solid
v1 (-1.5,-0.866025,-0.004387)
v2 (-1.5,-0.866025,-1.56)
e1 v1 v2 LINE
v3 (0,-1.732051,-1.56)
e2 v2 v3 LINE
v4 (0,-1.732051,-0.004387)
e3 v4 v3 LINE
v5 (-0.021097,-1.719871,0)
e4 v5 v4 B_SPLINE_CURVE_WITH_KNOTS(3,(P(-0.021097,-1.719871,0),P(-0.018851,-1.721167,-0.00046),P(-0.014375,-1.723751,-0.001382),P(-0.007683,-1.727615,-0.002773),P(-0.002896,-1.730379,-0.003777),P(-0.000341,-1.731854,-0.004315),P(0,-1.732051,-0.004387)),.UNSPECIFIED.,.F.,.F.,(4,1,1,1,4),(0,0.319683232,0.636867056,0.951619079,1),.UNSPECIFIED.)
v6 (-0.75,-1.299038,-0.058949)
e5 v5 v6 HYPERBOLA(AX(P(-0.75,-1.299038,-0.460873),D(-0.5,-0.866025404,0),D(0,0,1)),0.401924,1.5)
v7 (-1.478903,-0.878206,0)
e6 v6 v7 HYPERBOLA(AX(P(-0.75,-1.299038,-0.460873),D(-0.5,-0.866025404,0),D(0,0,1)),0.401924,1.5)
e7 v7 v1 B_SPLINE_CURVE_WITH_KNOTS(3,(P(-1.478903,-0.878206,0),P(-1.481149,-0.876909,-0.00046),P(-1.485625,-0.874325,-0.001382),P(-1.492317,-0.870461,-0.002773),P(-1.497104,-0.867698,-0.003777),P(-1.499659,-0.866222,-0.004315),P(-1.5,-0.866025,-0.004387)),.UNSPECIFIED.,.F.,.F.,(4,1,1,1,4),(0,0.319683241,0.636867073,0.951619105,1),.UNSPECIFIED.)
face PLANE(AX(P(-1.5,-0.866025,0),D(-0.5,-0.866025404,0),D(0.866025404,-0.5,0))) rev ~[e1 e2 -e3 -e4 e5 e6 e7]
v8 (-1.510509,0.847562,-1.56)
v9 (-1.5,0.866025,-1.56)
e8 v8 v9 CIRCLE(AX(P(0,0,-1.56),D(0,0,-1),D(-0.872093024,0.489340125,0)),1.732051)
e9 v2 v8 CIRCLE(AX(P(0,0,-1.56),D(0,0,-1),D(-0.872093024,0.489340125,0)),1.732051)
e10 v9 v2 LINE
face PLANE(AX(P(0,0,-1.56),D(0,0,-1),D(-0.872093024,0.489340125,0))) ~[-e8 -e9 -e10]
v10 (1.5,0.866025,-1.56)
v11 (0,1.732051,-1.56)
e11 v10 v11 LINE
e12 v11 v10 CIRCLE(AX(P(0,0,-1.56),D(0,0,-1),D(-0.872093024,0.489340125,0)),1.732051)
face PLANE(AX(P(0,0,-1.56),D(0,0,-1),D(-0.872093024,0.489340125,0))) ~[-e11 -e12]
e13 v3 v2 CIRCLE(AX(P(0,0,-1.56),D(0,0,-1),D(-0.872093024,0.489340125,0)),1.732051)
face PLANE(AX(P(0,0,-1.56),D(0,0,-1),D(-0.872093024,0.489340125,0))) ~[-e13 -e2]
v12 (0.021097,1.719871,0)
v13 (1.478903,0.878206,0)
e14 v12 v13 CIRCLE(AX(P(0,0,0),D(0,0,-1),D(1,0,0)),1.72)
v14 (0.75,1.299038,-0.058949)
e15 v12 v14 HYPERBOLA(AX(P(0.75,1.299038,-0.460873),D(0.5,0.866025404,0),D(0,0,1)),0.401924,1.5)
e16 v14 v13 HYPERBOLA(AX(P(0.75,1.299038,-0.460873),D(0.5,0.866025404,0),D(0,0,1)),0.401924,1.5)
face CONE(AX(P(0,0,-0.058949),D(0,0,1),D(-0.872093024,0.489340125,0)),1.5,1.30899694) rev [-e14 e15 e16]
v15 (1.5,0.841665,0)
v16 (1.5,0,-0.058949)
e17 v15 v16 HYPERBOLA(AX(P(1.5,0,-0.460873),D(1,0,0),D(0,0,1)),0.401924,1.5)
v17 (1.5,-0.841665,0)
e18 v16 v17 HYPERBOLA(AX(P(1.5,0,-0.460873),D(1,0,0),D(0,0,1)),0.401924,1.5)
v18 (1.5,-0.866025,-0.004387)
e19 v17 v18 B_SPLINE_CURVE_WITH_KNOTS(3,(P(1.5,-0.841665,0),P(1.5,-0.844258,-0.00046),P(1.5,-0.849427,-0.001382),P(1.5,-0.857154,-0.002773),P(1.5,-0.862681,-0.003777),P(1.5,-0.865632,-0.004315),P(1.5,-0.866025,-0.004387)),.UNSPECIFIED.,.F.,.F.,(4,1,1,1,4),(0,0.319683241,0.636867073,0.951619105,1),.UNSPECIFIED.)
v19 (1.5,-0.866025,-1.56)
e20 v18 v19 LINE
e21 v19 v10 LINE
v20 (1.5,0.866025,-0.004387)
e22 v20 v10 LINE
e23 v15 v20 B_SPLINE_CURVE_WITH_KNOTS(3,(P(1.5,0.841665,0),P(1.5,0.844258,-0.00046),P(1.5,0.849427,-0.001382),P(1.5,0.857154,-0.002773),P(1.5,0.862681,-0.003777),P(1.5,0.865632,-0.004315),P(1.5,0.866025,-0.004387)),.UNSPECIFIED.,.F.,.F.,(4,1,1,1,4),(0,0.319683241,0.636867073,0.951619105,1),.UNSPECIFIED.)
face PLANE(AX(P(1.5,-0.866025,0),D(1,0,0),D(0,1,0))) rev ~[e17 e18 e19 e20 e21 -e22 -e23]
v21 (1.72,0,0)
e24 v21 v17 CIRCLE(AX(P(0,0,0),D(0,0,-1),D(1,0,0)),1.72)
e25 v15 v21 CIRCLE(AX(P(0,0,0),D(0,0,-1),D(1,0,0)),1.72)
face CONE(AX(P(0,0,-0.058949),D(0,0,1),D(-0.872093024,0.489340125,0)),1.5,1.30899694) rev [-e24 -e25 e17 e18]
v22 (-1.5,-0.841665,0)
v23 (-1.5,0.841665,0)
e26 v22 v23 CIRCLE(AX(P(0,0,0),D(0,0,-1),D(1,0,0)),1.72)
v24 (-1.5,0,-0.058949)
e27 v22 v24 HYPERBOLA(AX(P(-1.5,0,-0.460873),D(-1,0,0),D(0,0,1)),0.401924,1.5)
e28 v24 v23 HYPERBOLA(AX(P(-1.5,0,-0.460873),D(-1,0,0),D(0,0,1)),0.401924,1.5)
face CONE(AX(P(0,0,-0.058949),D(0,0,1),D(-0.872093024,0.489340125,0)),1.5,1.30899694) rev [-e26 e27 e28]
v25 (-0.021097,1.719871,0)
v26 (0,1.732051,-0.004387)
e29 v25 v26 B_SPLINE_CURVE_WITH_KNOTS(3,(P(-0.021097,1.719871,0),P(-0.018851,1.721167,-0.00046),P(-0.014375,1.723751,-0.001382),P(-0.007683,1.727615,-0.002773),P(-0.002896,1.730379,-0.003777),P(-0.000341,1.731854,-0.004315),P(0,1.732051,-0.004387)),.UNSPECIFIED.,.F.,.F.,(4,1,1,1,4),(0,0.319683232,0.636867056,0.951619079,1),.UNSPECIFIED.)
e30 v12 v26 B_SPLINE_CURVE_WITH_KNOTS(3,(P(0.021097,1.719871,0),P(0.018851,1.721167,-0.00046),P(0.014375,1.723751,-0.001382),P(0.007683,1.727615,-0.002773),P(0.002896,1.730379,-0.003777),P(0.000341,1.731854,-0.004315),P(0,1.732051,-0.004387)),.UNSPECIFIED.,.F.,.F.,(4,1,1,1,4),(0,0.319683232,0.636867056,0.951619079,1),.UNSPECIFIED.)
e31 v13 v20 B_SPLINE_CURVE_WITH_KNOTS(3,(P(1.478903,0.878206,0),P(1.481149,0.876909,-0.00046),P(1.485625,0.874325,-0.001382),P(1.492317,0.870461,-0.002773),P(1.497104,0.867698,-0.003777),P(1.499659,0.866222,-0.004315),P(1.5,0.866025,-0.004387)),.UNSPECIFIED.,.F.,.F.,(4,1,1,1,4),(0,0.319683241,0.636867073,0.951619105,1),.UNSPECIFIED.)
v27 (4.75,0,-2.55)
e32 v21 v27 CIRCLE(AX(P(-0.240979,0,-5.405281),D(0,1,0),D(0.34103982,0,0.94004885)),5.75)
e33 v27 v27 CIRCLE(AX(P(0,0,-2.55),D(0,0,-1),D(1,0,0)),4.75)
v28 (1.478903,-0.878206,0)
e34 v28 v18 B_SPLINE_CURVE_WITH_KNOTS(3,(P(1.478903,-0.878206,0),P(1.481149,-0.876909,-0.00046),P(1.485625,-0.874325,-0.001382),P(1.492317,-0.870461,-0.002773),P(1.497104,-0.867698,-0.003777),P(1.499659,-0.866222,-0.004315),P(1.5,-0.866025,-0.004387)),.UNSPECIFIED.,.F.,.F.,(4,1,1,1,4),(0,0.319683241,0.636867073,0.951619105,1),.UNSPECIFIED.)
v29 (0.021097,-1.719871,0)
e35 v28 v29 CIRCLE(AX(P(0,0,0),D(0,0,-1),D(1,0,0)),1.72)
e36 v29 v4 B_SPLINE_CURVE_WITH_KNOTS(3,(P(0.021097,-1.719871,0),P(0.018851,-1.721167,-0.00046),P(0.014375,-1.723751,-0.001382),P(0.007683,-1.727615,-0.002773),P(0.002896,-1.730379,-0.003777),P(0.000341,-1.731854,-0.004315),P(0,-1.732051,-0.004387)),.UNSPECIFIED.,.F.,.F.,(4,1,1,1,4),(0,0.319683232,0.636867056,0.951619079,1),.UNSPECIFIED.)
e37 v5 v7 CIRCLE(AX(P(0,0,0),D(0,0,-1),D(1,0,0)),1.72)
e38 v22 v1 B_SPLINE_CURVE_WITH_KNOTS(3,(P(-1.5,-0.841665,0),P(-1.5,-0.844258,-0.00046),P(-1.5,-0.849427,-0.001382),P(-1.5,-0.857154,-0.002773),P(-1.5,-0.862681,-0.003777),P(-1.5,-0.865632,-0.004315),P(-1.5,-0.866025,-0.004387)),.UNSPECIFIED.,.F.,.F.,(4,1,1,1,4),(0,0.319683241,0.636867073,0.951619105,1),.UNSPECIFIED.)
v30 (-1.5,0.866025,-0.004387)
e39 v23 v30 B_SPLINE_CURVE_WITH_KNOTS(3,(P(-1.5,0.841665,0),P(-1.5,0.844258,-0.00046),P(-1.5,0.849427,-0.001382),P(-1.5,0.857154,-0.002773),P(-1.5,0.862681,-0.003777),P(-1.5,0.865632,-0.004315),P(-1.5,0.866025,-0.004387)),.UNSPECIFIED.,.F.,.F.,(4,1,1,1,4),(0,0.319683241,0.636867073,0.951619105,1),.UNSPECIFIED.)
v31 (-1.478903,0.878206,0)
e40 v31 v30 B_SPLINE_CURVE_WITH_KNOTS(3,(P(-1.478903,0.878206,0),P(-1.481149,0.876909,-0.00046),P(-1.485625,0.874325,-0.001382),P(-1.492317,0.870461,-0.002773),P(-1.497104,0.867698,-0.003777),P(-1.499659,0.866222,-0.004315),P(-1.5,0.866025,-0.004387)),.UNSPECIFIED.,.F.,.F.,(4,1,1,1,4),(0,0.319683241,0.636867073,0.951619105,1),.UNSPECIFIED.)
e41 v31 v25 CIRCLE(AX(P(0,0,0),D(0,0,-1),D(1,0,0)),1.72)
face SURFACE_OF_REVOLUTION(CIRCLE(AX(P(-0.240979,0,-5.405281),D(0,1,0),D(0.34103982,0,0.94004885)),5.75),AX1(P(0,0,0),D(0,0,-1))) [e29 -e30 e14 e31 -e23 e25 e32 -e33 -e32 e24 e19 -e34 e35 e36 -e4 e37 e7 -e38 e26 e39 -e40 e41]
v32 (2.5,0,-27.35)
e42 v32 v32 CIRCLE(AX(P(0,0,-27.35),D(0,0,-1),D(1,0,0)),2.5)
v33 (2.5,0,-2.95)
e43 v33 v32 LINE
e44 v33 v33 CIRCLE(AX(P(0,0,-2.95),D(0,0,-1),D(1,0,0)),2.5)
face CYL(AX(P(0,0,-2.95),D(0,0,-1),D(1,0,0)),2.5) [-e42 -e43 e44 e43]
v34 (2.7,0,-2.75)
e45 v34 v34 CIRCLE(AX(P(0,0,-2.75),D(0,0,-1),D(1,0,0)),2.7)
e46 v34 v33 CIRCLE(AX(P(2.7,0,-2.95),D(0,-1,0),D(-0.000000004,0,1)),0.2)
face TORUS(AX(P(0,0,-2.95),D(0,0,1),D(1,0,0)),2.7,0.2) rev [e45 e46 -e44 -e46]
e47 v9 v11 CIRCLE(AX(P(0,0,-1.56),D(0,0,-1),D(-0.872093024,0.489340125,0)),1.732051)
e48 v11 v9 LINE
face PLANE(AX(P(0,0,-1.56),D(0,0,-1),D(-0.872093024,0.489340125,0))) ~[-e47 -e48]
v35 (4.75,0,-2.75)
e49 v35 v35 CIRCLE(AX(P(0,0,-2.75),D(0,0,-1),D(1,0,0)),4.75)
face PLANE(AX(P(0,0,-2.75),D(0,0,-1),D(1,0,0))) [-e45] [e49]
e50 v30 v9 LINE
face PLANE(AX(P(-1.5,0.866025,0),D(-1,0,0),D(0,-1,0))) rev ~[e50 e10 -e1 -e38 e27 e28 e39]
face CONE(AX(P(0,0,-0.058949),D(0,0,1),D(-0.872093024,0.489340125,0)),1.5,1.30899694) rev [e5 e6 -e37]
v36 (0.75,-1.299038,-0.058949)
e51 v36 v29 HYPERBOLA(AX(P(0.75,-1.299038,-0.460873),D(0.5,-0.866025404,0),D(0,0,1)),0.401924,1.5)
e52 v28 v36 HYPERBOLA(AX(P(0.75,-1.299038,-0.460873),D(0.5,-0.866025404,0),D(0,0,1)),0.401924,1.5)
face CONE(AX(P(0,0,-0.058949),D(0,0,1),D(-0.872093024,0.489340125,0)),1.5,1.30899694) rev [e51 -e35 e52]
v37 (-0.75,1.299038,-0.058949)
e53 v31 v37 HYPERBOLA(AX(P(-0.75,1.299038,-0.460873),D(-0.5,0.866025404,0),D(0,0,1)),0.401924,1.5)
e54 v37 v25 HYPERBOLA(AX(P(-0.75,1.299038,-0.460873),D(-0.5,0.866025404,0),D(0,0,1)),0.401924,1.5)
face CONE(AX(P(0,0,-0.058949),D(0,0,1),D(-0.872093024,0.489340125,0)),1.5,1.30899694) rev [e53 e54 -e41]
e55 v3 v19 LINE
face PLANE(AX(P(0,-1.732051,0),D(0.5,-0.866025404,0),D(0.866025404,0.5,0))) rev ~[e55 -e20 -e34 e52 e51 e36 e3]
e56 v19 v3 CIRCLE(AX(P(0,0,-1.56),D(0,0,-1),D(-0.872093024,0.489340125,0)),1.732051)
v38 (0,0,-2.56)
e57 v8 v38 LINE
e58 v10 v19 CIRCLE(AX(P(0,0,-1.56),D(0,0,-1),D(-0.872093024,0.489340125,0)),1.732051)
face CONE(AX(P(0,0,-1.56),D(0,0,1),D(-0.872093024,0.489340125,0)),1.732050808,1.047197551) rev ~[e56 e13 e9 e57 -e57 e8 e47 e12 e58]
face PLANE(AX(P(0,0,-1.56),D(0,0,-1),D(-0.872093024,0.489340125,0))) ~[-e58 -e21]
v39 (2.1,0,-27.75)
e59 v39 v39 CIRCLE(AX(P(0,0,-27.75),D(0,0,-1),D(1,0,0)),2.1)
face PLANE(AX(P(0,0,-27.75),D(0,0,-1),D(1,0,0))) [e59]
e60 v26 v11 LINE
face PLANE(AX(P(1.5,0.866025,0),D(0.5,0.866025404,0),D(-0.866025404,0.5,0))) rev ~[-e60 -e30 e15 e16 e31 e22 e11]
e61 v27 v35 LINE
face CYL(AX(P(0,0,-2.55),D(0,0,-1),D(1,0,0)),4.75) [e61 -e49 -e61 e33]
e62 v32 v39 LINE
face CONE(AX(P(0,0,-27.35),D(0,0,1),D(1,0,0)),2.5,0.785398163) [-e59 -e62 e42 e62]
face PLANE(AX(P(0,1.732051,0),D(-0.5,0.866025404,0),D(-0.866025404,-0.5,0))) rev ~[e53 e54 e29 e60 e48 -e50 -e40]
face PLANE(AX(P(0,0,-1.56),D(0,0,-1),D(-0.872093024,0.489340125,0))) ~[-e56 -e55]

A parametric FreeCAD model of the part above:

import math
import FreeCAD as App
import Part
import Sketcher
Q = App.Units.Quantity

doc = App.newDocument("Part")
params = doc.addObject("Spreadsheet::Sheet", "Params")
for row, (alias, value) in enumerate([
    ("sketch1_radius", "0.2 mm"),
    ("sketch1_radius2", "5.75 mm"),
    ("sketch1_width", "2.1 mm"),
    ("sketch1_height", "24.4 mm"),
    ("sketch1_height2", "0.2 mm"),
    ("revolution_angle", "360 deg"),
    ("pocket1_length", "1.56 mm"),
    ("sketch3_width", "0.22 mm"),
    ("groove_angle", "360 deg"),
    ("sketch4_height", "1 mm"),
    ("groove2_angle", "360 deg"),
], start=1):
    params.set(f"A{row}", alias)
    params.set(f"B{row}", "=" + value)
    params.setAlias(f"B{row}", alias)

body = doc.addObject("PartDesign::Body", "Body")

# Sketch on YZ plane
sketch1 = body.newObject("Sketcher::SketchObject", "Sketch")
sketch1.AttachmentSupport = (doc.getObject("YZ_Plane"), [""])
sketch1.MapMode = "FlatFace"
sketch1.addGeometry(Part.LineSegment(App.Vector(1.72, 0, 0), App.Vector(0, 0, 0)), False)
sketch1.addGeometry(Part.LineSegment(App.Vector(0, 0, 0), App.Vector(0, -27.75, 0)), False)
sketch1.addGeometry(Part.LineSegment(App.Vector(0, -27.75, 0), App.Vector(2.1, -27.75, 0)), False)
sketch1.addGeometry(Part.LineSegment(App.Vector(2.1, -27.75, 0), App.Vector(2.5, -27.35, 0)), False)
sketch1.addGeometry(Part.LineSegment(App.Vector(2.5, -27.35, 0), App.Vector(2.5, -2.95, 0)), False)
sketch1.addGeometry(Part.ArcOfCircle(Part.Circle(App.Vector(2.7, -2.95, 0), App.Vector(0, 0, 1), 0.2), math.radians(90), math.radians(180)), False)
sketch1.addGeometry(Part.LineSegment(App.Vector(2.7, -2.75, 0), App.Vector(4.75, -2.75, 0)), False)
sketch1.addGeometry(Part.LineSegment(App.Vector(4.75, -2.75, 0), App.Vector(4.75, -2.55, 0)), False)
sketch1.addGeometry(Part.ArcOfCircle(Part.Circle(App.Vector(-0.240979, -5.405281, 0), App.Vector(0, 0, 1), 5.75), math.radians(29.77337), math.radians(70.059762)), False)
sketch1.addConstraint(Sketcher.Constraint("Coincident", 0, 2, 1, 1))
sketch1.addConstraint(Sketcher.Constraint("Coincident", 1, 2, 2, 1))
sketch1.addConstraint(Sketcher.Constraint("Coincident", 2, 2, 3, 1))
sketch1.addConstraint(Sketcher.Constraint("Coincident", 3, 2, 4, 1))
sketch1.addConstraint(Sketcher.Constraint("Tangent", 4, 2, 5, 2))
sketch1.addConstraint(Sketcher.Constraint("Tangent", 5, 1, 6, 1))
sketch1.addConstraint(Sketcher.Constraint("Coincident", 6, 2, 7, 1))
sketch1.addConstraint(Sketcher.Constraint("Coincident", 7, 2, 8, 1))
sketch1.addConstraint(Sketcher.Constraint("Coincident", 8, 2, 0, 1))
sketch1.addConstraint(Sketcher.Constraint("Horizontal", 0))
sketch1.addConstraint(Sketcher.Constraint("Vertical", 1))
sketch1.addConstraint(Sketcher.Constraint("Horizontal", 2))
sketch1.addConstraint(Sketcher.Constraint("Vertical", 4))
sketch1.addConstraint(Sketcher.Constraint("Horizontal", 6))
sketch1.addConstraint(Sketcher.Constraint("Vertical", 7))
sketch1.addConstraint(Sketcher.Constraint("Coincident", 0, 2, -1, 1))
sketch1.addConstraint(Sketcher.Constraint("Radius", 5, 0.2))
sketch1.addConstraint(Sketcher.Constraint("Angle", 3, Q("45 deg")))
sketch1.addConstraint(Sketcher.Constraint("Radius", 8, 5.75))
sketch1.addConstraint(Sketcher.Constraint("DistanceX", 2, 1, 2, 2, 2.1))
sketch1.addConstraint(Sketcher.Constraint("DistanceY", 4, 1, 4, 2, 24.4))
sketch1.addConstraint(Sketcher.Constraint("DistanceY", 7, 1, 7, 2, 0.2))
sketch1.addConstraint(Sketcher.Constraint("DistanceX", 0, 2, 0, 1, 1.72))
sketch1.addConstraint(Sketcher.Constraint("DistanceX", 6, 1, 6, 2, 2.05))
sketch1.addConstraint(Sketcher.Constraint("DistanceY", 1, 2, 1, 1, 27.75))
sketch1.addConstraint(Sketcher.Constraint("DistanceX", -1, 1, 5, 3, 2.7))
sketch1.setExpression("Constraints[16]", "Params.sketch1_radius")
sketch1.setExpression("Constraints[18]", "Params.sketch1_radius2")
sketch1.setExpression("Constraints[19]", "Params.sketch1_width")
sketch1.setExpression("Constraints[20]", "Params.sketch1_height")
sketch1.setExpression("Constraints[21]", "Params.sketch1_height2")
revolution = body.newObject("PartDesign::Revolution", "Revolution")
revolution.Profile = sketch1
revolution.ReferenceAxis = (sketch1, ["V_Axis"])
revolution.setExpression("Angle", "Params.revolution_angle")

# Sketch on XY plane
sketch2 = body.newObject("Sketcher::SketchObject", "Sketch001")
sketch2.AttachmentSupport = (doc.getObject("XY_Plane"), [""])
sketch2.MapMode = "FlatFace"
sketch2.addGeometry(Part.LineSegment(App.Vector(0, -1.732051, 0), App.Vector(1.5, -0.866025, 0)), False)
sketch2.addGeometry(Part.LineSegment(App.Vector(1.5, -0.866025, 0), App.Vector(1.5, 0.866025, 0)), False)
sketch2.addGeometry(Part.LineSegment(App.Vector(1.5, 0.866025, 0), App.Vector(0, 1.732051, 0)), False)
sketch2.addGeometry(Part.LineSegment(App.Vector(0, 1.732051, 0), App.Vector(-1.5, 0.866025, 0)), False)
sketch2.addGeometry(Part.LineSegment(App.Vector(-1.5, 0.866025, 0), App.Vector(-1.5, -0.866025, 0)), False)
sketch2.addGeometry(Part.LineSegment(App.Vector(-1.5, -0.866025, 0), App.Vector(0, -1.732051, 0)), False)
sketch2.addConstraint(Sketcher.Constraint("Coincident", 0, 2, 1, 1))
sketch2.addConstraint(Sketcher.Constraint("Coincident", 1, 2, 2, 1))
sketch2.addConstraint(Sketcher.Constraint("Coincident", 2, 2, 3, 1))
sketch2.addConstraint(Sketcher.Constraint("Coincident", 3, 2, 4, 1))
sketch2.addConstraint(Sketcher.Constraint("Coincident", 4, 2, 5, 1))
sketch2.addConstraint(Sketcher.Constraint("Coincident", 5, 2, 0, 1))
sketch2.addConstraint(Sketcher.Constraint("Vertical", 1))
sketch2.addConstraint(Sketcher.Constraint("Vertical", 4))
sketch2.addConstraint(Sketcher.Constraint("Symmetric", 0, 2, 3, 2, -1, 1))
sketch2.addConstraint(Sketcher.Constraint("Symmetric", 2, 2, 5, 2, -1, 1))
sketch2.addConstraint(Sketcher.Constraint("PointOnObject", 2, 2, -2))
sketch2.addConstraint(Sketcher.Constraint("Parallel", 2, 5))
sketch2.addConstraint(Sketcher.Constraint("Horizontal", 1, 2, 3, 2))
sketch2.addConstraint(Sketcher.Constraint("Angle", 0, Q("30 deg")))
sketch2.addConstraint(Sketcher.Constraint("DistanceX", 3, 2, 1, 2, 3.0))
sketch2.addConstraint(Sketcher.Constraint("DistanceY", 1, 1, 1, 2, 1.732051))
pocket1 = body.newObject("PartDesign::Pocket", "Pocket")
pocket1.Profile = sketch2
pocket1.setExpression("Length", "Params.pocket1_length")

# Sketch on YZ plane
sketch3 = body.newObject("Sketcher::SketchObject", "Sketch002")
sketch3.AttachmentSupport = (doc.getObject("YZ_Plane"), [""])
sketch3.MapMode = "FlatFace"
sketch3.addGeometry(Part.LineSegment(App.Vector(-1.72, 0, 0), App.Vector(-1.5, -0.058949, 0)), False)
sketch3.addGeometry(Part.LineSegment(App.Vector(-1.5, -0.058949, 0), App.Vector(-1.5, 0, 0)), False)
sketch3.addGeometry(Part.LineSegment(App.Vector(-1.5, 0, 0), App.Vector(-1.72, 0, 0)), False)
sketch3.addConstraint(Sketcher.Constraint("Coincident", 0, 2, 1, 1))
sketch3.addConstraint(Sketcher.Constraint("Coincident", 1, 2, 2, 1))
sketch3.addConstraint(Sketcher.Constraint("Coincident", 2, 2, 0, 1))
sketch3.addConstraint(Sketcher.Constraint("Vertical", 1))
sketch3.addConstraint(Sketcher.Constraint("Horizontal", 2))
sketch3.addConstraint(Sketcher.Constraint("PointOnObject", 1, 2, -1))
sketch3.addConstraint(Sketcher.Constraint("Angle", 0, Q("-15 deg")))
sketch3.addConstraint(Sketcher.Constraint("DistanceX", 2, 2, 2, 1, 0.22))
sketch3.addConstraint(Sketcher.Constraint("DistanceX", 0, 2, -1, 1, 1.5))
sketch3.setExpression("Constraints[7]", "Params.sketch3_width")
groove = body.newObject("PartDesign::Groove", "Groove")
groove.Profile = sketch3
groove.ReferenceAxis = (sketch3, ["V_Axis"])
groove.setExpression("Angle", "Params.groove_angle")

# Sketch on YZ plane
sketch4 = body.newObject("Sketcher::SketchObject", "Sketch003")
sketch4.AttachmentSupport = (doc.getObject("YZ_Plane"), [""])
sketch4.MapMode = "FlatFace"
sketch4.addGeometry(Part.LineSegment(App.Vector(0, -1.56, 0), App.Vector(-1.732051, -1.56, 0)), False)
sketch4.addGeometry(Part.LineSegment(App.Vector(-1.732051, -1.56, 0), App.Vector(0, -2.56, 0)), False)
sketch4.addGeometry(Part.LineSegment(App.Vector(0, -2.56, 0), App.Vector(0, -1.56, 0)), False)
sketch4.addConstraint(Sketcher.Constraint("Coincident", 0, 2, 1, 1))
sketch4.addConstraint(Sketcher.Constraint("Coincident", 1, 2, 2, 1))
sketch4.addConstraint(Sketcher.Constraint("Coincident", 2, 2, 0, 1))
sketch4.addConstraint(Sketcher.Constraint("Horizontal", 0))
sketch4.addConstraint(Sketcher.Constraint("Vertical", 2))
sketch4.addConstraint(Sketcher.Constraint("PointOnObject", 1, 2, -2))
sketch4.addConstraint(Sketcher.Constraint("DistanceY", 2, 1, 2, 2, 1.0))
sketch4.addConstraint(Sketcher.Constraint("Angle", 1, Q("-30 deg")))
sketch4.addConstraint(Sketcher.Constraint("DistanceY", 0, 2, -1, 1, 1.56))
sketch4.setExpression("Constraints[6]", "Params.sketch4_height")
groove2 = body.newObject("PartDesign::Groove", "Groove001")
groove2.Profile = sketch4
groove2.ReferenceAxis = (sketch4, ["V_Axis"])
groove2.setExpression("Angle", "Params.groove2_angle")

doc.recompute()
